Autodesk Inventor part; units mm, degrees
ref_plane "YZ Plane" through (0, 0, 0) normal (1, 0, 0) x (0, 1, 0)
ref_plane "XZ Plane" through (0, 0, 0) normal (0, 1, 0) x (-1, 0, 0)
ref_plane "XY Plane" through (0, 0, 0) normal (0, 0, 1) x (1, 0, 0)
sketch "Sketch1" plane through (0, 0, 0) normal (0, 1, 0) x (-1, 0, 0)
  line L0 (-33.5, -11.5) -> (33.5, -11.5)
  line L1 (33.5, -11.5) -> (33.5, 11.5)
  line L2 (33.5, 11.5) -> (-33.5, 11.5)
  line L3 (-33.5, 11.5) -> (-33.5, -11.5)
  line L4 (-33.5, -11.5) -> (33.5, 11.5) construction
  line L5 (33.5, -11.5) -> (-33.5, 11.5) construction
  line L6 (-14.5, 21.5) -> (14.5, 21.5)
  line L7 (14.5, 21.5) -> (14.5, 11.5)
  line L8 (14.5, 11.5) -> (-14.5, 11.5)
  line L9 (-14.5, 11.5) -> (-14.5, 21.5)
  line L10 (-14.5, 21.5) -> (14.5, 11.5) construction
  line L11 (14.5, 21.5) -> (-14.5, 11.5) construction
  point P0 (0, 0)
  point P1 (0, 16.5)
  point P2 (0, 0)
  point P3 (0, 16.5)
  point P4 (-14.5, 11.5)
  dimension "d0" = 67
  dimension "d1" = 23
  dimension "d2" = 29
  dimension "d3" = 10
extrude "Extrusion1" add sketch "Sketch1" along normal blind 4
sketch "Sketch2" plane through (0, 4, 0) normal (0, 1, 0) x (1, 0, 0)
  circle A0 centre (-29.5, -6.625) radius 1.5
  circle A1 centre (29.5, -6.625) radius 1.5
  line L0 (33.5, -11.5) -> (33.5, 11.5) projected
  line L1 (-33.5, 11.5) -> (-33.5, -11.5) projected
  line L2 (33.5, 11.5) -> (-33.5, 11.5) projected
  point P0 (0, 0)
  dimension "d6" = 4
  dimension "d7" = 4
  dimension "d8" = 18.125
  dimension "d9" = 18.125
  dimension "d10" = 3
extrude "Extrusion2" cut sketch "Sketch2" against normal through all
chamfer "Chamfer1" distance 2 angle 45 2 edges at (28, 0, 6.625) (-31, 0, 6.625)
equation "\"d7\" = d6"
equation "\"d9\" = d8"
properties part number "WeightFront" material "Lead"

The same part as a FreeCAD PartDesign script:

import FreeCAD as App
import Part
import Sketcher

V = App.Vector


def edges_at(feature, points):
    """Names of the edges that pass closest to the given points."""
    edges = feature.Shape.Edges
    near = lambda p: min(range(len(edges)), key=lambda i: edges[i].distToShape(Part.Vertex(*p))[0])
    return sorted({f"Edge{near(p) + 1}" for p in points})


def add_polygon(sketch, points):
    """Adds a closed chain of lines whose ends are joined by coincident constraints."""
    first, n = sketch.GeometryCount, len(points)
    for a, b in zip(points, points[1:] + points[:1]):
        sketch.addGeometry(Part.LineSegment(App.Vector(*a, 0), App.Vector(*b, 0)), False)
    for i in range(n):
        sketch.addConstraint(Sketcher.Constraint("Coincident", first + i, 2, first + (i + 1) % n, 1))

doc = App.newDocument("Part")
body = doc.addObject("PartDesign::Body", "Body")

# Sketch on XZ plane
sketch1 = body.newObject("Sketcher::SketchObject", "Sketch")
sketch1.AttachmentSupport = (doc.getObject("XZ_Plane"), [""])
sketch1.MapMode = "FlatFace"
add_polygon(sketch1, [(34, 12), (34, -12), (-34, -12), (-34, 12), (-14, 12), (-14, 22), (14, 22), (14, 12)])  # lines 0-7
sketch1.addConstraint([
    Sketcher.Constraint("Vertical", 0),
    Sketcher.Constraint("Horizontal", 1),
    Sketcher.Constraint("Vertical", 2),
    Sketcher.Constraint("Horizontal", 3),
    Sketcher.Constraint("Vertical", 4),
    Sketcher.Constraint("Horizontal", 5),
    Sketcher.Constraint("Vertical", 6),
    Sketcher.Constraint("Horizontal", 7),
    Sketcher.Constraint("Symmetric", 0, 2, 2, 2, -1, 1),
    Sketcher.Constraint("Symmetric", 3, 2, 6, 2, -2),
    Sketcher.Constraint("DistanceX", 1, 2, 1, 1, 67.0),
    Sketcher.Constraint("DistanceX", 5, 1, 5, 2, 29.0),
    Sketcher.Constraint("DistanceY", 0, 2, 0, 1, 23.0),
    Sketcher.Constraint("DistanceY", 4, 1, 4, 2, 10.0),
])
pad1 = body.newObject("PartDesign::Pad", "Pad")
pad1.Profile = sketch1
pad1.Length = 4
pad1.Reversed = True

# Sketch on XZ plane
sketch2 = body.newObject("Sketcher::SketchObject", "Sketch001")
sketch2.AttachmentSupport = (doc.getObject("XZ_Plane"), [""])
sketch2.MapMode = "FlatFace"
sketch2.AttachmentOffset = App.Placement(V(0, 0, -4), App.Rotation())
sketch2.addGeometry([
    Part.Circle(V(-29.5, 6.6, 0), V(0, 0, 1), 1.5),
    Part.Circle(V(29.5, 6.6, 0), V(0, 0, 1), 1.5),
], False)
sketch2.addConstraint([
    Sketcher.Constraint("Equal", 0, 1),
    Sketcher.Constraint("Symmetric", 0, 3, 1, 3, -2),
    Sketcher.Constraint("Diameter", 0, 3.0),
    Sketcher.Constraint("DistanceX", 0, 3, 1, 3, 59.0),
    Sketcher.Constraint("DistanceY", -1, 1, 0, 3, 6.625),
])
pocket1 = body.newObject("PartDesign::Pocket", "Pocket")
pocket1.Profile = sketch2
pocket1.Type = "ThroughAll"
pocket1.Reversed = True
doc.recompute()

chamfer = body.newObject("PartDesign::Chamfer", "Chamfer")
chamfer.Base = (pocket1, edges_at(pocket1, [(28, 0, 6.625), (-31, 0, 6.625)]))
chamfer.Size = 2

doc.recompute()
